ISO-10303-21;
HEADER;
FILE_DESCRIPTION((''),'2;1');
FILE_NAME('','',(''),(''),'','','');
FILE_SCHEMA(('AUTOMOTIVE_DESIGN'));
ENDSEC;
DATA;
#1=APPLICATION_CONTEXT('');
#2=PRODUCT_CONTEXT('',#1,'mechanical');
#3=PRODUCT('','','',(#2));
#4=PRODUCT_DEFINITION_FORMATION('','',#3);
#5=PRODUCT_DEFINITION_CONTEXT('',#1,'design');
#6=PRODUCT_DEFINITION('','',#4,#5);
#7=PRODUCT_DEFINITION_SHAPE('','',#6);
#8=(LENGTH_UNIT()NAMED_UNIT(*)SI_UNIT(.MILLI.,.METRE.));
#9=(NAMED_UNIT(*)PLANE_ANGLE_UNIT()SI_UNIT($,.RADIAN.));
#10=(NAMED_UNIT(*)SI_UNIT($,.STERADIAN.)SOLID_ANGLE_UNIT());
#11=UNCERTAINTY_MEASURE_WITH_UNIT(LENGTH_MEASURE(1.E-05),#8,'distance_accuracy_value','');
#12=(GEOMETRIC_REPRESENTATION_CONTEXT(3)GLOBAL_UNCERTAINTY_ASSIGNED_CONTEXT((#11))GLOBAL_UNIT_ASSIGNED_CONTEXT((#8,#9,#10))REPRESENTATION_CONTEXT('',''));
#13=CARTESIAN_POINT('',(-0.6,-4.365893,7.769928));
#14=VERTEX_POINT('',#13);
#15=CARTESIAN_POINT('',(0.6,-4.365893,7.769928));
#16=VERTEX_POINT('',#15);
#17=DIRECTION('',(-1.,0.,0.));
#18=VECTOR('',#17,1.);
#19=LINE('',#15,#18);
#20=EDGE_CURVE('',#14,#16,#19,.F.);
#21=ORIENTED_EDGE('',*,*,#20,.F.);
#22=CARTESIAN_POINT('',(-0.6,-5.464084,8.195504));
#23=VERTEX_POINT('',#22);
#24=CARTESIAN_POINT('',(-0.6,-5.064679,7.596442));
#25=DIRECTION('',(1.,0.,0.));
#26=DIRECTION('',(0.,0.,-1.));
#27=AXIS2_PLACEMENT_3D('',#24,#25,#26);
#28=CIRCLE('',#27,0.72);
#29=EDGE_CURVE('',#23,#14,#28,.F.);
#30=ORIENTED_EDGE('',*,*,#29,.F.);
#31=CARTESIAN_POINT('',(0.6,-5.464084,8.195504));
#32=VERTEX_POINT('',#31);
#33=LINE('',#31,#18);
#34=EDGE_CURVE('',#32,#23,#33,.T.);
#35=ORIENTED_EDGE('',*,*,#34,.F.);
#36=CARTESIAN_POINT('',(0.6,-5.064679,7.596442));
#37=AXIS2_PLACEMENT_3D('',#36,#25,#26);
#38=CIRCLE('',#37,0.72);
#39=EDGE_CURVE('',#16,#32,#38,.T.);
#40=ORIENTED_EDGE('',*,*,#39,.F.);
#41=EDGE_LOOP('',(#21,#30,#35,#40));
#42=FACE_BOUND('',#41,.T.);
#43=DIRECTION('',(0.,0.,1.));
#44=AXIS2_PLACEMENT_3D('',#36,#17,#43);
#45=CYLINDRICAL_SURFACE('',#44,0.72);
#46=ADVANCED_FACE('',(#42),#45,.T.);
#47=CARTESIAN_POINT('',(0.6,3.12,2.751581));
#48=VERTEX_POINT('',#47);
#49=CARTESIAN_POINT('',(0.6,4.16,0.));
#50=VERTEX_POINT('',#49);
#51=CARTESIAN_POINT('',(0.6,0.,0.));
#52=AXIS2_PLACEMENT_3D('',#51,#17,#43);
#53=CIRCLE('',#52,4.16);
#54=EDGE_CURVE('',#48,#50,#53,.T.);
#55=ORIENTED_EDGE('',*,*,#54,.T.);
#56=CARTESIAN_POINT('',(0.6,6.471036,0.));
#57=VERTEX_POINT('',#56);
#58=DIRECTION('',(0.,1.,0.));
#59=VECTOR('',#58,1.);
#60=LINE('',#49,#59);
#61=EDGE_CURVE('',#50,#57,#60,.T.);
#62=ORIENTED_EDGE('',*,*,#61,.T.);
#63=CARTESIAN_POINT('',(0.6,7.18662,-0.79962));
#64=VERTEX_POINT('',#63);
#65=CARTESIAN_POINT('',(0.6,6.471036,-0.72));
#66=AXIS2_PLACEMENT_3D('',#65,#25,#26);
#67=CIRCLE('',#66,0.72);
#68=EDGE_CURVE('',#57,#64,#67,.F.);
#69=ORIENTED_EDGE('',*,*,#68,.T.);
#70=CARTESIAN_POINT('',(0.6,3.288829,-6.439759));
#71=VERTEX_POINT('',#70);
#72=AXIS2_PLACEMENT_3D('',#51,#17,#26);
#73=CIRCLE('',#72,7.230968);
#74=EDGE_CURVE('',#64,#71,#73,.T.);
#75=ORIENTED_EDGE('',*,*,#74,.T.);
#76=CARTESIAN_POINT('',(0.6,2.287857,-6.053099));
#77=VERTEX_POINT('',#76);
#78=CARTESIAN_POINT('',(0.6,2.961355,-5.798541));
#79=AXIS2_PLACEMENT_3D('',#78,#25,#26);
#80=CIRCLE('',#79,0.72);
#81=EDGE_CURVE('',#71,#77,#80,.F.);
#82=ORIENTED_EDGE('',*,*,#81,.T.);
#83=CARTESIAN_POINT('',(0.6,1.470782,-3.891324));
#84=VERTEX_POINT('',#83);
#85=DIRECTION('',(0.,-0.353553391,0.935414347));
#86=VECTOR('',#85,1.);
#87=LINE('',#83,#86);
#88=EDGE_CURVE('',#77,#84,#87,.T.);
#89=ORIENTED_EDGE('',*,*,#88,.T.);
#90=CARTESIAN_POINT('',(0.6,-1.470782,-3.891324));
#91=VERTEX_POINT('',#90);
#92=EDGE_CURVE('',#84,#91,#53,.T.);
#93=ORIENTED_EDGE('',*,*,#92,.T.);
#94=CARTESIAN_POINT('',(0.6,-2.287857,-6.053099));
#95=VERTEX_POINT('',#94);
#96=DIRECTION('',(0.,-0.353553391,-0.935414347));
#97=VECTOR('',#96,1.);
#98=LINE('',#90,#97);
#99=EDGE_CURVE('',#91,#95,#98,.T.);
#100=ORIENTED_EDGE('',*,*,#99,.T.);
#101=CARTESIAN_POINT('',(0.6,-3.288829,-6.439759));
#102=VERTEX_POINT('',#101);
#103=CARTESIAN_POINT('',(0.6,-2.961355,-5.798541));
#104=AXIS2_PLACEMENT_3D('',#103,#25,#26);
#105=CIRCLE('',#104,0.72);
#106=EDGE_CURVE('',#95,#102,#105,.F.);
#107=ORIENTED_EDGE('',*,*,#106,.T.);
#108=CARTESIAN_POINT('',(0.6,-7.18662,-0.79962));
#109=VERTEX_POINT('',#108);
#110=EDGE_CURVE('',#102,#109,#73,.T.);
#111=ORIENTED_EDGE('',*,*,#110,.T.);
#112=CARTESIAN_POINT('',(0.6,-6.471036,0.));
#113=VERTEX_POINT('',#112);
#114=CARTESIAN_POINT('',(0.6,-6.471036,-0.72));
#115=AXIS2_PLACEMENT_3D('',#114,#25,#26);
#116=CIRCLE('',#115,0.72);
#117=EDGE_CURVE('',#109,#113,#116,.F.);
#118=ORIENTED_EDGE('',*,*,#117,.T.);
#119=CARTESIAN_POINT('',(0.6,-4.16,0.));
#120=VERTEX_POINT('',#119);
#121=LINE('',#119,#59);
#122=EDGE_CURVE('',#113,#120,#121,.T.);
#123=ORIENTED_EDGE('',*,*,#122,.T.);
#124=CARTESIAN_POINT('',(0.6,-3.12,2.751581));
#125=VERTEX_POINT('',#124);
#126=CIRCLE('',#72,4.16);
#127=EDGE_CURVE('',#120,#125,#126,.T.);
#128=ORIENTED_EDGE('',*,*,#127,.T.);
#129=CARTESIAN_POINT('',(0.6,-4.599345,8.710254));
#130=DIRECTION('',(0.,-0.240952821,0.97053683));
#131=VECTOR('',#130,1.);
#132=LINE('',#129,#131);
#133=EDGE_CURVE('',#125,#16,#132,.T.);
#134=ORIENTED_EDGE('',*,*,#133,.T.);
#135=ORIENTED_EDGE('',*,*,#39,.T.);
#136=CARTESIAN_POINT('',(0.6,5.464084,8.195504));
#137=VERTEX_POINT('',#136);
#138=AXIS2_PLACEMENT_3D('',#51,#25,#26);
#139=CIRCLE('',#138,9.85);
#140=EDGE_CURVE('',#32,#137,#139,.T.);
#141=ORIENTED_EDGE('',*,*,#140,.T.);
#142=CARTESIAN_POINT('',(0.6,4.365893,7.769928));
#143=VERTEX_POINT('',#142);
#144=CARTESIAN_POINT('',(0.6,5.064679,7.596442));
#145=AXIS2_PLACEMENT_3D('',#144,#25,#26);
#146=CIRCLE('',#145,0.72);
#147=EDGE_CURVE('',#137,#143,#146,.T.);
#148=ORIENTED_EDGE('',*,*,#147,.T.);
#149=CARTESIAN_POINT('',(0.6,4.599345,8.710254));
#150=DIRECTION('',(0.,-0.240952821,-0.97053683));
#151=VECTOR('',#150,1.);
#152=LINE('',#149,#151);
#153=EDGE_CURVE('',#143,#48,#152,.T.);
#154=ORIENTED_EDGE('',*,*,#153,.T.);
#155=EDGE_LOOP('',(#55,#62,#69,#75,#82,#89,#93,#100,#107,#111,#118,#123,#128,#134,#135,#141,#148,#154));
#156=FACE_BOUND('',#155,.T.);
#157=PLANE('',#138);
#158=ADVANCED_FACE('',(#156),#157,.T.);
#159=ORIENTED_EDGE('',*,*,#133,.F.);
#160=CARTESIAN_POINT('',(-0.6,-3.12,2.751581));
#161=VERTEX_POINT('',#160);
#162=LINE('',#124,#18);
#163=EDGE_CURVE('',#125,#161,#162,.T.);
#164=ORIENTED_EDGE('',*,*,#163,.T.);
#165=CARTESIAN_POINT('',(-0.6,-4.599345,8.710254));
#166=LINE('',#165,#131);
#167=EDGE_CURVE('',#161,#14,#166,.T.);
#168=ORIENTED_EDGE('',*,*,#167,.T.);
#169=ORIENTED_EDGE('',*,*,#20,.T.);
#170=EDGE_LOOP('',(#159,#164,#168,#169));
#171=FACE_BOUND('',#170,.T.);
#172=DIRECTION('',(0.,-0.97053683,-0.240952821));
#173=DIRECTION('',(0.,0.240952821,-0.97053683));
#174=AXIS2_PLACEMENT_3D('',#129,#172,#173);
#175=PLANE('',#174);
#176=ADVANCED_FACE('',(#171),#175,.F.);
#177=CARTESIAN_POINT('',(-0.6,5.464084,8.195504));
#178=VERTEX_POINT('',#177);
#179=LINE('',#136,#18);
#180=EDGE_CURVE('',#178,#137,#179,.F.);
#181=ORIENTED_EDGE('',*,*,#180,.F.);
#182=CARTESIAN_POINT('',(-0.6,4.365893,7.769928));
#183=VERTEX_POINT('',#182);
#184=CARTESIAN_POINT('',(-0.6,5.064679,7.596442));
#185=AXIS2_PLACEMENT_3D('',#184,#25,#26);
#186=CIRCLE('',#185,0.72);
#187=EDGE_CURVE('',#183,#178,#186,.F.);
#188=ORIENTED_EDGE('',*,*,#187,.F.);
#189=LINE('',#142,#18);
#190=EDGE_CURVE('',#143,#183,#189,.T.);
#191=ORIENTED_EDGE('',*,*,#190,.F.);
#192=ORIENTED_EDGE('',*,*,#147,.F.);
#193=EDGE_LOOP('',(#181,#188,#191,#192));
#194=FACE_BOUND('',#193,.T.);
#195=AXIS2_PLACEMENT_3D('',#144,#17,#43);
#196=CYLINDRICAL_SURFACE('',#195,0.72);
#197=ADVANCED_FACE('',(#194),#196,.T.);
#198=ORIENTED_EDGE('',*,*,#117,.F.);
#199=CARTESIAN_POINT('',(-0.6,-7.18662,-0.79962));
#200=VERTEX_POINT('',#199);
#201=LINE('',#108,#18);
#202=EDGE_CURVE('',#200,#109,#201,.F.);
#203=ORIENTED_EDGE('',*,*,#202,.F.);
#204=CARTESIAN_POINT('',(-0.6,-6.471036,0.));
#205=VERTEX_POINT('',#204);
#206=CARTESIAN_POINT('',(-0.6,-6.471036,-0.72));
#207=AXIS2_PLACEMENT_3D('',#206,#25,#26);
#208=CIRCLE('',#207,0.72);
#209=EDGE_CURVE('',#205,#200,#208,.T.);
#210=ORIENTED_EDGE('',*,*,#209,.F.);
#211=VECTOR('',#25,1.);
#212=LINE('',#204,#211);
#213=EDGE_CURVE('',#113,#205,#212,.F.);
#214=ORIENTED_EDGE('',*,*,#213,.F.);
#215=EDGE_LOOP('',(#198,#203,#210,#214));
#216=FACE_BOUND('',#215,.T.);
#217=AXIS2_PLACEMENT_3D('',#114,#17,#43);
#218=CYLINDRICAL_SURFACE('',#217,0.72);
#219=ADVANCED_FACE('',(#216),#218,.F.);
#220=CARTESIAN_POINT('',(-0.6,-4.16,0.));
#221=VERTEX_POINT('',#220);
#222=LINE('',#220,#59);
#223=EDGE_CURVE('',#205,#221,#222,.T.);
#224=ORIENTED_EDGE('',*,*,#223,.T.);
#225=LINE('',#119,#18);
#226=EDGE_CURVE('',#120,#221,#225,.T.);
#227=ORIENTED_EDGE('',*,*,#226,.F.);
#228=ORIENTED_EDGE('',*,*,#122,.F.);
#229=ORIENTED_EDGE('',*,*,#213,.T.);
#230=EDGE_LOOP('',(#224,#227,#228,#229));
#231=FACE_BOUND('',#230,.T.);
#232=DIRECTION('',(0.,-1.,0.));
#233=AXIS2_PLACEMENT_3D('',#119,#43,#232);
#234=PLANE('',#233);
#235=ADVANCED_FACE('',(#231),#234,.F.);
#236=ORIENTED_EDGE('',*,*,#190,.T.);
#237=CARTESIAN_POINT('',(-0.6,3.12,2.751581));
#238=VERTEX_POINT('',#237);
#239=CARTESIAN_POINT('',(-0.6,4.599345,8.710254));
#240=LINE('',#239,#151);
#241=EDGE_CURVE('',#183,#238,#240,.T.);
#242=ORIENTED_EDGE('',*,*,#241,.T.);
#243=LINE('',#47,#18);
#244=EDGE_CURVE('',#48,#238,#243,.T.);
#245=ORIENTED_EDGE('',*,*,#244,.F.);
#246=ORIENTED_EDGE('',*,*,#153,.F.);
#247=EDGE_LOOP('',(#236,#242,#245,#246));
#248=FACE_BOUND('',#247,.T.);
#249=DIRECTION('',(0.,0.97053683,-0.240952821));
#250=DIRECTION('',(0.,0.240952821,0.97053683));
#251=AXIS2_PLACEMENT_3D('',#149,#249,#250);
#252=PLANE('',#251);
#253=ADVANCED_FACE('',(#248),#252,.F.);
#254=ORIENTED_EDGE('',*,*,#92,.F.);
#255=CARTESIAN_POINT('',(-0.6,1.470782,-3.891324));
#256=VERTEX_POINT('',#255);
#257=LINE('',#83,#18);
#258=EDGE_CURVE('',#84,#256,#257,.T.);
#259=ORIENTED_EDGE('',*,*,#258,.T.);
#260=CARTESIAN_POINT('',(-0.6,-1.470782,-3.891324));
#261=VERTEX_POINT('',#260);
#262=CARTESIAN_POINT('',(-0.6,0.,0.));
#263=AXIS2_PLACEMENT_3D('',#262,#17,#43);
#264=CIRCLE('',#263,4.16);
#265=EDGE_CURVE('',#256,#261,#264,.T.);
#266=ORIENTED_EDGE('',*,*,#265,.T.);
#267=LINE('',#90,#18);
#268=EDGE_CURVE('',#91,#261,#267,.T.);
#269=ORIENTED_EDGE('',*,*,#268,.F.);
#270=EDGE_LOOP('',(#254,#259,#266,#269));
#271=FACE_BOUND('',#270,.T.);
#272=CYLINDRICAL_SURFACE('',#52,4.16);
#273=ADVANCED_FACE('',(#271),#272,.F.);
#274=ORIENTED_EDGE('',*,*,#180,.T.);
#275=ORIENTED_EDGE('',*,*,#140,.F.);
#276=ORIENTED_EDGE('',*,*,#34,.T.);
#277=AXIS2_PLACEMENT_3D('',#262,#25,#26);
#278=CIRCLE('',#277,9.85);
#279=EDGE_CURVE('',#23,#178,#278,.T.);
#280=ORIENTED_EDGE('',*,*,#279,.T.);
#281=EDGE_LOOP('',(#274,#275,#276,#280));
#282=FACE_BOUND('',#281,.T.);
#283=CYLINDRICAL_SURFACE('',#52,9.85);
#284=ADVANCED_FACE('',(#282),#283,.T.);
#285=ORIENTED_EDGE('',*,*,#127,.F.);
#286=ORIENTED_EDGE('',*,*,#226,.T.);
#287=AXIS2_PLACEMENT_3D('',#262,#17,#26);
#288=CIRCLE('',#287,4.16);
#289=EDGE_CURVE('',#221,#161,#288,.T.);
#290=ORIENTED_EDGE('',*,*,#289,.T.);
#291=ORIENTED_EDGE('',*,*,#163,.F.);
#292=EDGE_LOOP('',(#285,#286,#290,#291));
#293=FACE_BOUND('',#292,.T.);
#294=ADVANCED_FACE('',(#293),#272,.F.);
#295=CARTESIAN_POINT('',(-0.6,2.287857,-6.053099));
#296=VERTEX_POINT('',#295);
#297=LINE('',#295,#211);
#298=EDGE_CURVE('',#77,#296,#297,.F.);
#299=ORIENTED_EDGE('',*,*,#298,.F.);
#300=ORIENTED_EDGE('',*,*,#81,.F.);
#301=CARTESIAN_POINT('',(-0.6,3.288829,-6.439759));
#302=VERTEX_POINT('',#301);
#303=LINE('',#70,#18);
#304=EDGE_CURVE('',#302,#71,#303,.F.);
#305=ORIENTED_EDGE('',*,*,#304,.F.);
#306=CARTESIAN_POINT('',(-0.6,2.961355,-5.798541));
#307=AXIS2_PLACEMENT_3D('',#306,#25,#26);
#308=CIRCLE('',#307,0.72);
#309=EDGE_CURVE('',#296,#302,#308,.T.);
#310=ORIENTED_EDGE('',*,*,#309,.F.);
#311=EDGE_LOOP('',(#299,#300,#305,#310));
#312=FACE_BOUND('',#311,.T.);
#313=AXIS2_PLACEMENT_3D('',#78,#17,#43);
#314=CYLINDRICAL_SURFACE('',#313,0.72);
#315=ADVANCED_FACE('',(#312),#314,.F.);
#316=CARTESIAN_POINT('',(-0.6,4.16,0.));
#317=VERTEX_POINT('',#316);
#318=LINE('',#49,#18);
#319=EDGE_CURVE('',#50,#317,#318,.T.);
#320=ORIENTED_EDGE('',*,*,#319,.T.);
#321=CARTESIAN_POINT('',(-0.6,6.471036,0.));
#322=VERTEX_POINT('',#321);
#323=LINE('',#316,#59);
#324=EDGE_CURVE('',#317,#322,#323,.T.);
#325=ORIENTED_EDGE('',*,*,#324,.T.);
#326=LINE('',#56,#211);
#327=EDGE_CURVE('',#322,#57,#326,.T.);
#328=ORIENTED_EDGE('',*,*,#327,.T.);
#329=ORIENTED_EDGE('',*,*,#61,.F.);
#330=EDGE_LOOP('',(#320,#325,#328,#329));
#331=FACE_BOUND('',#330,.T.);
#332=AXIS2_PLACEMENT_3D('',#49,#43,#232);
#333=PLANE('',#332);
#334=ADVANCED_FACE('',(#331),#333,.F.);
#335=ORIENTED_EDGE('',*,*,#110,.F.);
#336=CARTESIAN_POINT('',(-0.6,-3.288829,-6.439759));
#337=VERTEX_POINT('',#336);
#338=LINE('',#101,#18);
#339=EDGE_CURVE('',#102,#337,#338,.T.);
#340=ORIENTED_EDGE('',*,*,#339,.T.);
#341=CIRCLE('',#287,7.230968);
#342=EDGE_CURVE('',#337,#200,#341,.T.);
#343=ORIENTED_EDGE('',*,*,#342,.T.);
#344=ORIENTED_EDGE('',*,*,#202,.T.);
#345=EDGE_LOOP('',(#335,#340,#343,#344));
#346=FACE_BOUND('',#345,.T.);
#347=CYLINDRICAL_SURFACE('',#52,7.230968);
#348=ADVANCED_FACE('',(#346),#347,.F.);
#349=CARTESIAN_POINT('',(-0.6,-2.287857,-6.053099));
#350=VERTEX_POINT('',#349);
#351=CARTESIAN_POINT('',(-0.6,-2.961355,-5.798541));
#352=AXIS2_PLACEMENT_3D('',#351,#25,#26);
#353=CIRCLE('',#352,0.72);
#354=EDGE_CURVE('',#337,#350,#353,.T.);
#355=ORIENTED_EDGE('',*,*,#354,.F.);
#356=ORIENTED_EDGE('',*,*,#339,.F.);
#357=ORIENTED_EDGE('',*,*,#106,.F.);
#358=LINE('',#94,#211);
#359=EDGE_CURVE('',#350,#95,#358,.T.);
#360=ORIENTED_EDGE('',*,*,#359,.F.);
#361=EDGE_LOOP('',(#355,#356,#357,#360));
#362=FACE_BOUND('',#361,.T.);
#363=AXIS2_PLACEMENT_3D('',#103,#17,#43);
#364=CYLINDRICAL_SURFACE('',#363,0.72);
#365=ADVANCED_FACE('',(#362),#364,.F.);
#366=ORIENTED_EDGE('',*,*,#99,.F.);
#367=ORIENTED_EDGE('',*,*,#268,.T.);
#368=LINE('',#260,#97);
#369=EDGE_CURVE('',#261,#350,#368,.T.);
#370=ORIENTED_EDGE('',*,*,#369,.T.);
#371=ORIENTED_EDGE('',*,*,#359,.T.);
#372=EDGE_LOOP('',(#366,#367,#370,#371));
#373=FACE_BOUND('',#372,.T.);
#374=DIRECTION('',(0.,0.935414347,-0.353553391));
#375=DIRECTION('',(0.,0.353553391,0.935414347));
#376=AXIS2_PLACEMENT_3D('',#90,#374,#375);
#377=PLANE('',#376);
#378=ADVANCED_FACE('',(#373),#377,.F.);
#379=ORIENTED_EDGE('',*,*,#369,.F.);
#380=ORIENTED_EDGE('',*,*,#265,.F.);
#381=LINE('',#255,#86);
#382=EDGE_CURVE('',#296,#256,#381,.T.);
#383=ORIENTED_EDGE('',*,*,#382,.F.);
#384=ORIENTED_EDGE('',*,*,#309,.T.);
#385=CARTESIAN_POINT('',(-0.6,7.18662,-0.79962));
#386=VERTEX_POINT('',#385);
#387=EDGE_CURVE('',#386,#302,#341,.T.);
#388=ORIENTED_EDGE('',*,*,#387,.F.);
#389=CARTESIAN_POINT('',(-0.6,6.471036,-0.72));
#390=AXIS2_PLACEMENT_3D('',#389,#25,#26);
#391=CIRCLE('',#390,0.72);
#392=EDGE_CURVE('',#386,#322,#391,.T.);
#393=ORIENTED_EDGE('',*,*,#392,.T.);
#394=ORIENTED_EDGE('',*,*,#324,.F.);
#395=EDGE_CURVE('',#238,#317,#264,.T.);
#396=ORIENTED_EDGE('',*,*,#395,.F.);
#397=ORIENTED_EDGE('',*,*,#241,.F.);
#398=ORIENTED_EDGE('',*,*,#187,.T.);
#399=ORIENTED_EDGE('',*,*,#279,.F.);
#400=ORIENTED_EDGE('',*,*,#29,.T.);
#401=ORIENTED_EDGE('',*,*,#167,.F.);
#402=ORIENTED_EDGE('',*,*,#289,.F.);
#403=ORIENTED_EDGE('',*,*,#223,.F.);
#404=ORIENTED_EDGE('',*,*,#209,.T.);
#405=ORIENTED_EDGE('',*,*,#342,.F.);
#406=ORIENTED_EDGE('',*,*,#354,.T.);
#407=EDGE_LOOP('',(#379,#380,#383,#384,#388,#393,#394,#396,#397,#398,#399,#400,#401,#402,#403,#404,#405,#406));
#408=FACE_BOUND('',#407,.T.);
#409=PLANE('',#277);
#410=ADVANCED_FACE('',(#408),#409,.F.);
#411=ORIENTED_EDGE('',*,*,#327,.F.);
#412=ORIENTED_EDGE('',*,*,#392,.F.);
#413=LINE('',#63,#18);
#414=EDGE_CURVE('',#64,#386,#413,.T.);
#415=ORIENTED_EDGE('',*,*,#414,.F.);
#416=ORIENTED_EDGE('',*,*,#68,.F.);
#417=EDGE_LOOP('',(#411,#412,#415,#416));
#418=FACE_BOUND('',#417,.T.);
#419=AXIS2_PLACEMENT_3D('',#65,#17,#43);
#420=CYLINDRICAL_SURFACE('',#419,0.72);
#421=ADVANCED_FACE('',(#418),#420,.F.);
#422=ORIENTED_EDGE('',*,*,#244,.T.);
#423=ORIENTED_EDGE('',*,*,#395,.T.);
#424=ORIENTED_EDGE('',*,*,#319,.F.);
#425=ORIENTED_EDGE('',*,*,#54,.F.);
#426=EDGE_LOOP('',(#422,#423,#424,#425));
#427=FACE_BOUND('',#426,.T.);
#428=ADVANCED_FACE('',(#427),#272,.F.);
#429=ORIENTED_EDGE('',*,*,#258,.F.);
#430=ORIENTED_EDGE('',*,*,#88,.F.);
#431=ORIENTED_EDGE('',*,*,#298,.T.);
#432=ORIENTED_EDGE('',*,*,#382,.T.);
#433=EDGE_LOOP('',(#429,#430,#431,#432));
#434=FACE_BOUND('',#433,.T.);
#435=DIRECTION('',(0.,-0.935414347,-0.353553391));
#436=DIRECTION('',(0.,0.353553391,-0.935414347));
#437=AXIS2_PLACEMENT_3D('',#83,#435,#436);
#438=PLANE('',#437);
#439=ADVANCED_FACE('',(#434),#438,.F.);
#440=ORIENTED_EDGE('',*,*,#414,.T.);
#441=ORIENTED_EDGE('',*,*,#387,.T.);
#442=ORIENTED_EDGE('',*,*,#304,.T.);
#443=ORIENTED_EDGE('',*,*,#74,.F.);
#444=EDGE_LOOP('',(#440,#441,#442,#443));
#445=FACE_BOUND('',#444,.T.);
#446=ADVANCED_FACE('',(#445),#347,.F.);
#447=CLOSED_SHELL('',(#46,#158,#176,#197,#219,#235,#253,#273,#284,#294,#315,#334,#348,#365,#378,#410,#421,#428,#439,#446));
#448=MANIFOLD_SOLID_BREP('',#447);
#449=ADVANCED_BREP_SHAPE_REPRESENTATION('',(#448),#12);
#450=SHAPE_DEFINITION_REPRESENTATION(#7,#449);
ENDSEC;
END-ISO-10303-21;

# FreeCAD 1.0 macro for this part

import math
import FreeCAD as App
import Part
import Sketcher

V = App.Vector
Q = App.Units.Quantity


def edges_at(feature, points):
    """Names of the edges that pass closest to the given points."""
    edges = feature.Shape.Edges
    near = lambda p: min(range(len(edges)), key=lambda i: edges[i].distToShape(Part.Vertex(*p))[0])
    return sorted({f"Edge{near(p) + 1}" for p in points})

doc = App.newDocument("Part")
params = doc.addObject("Spreadsheet::Sheet", "Params")
for row, (alias, value) in enumerate([
    ("sketch1_radius", "9.85 mm"),
    ("sketch1_radius2", "4.16 mm"),
    ("pad1_length", "1.2 mm"),
    ("fillet_radius", "0.72 mm"),
], start=1):
    params.set(f"A{row}", alias)
    params.set(f"B{row}", "=" + value)
    params.setAlias(f"B{row}", alias)

body = doc.addObject("PartDesign::Body", "Body")

sketch1 = body.newObject("Sketcher::SketchObject", "Sketch")
sketch1.AttachmentSupport = (doc.getObject("YZ_Plane"), [""])
sketch1.MapMode = "FlatFace"
sketch1.addGeometry(Part.LineSegment(V(-3.1, 2.8, 0), V(-4.6, 8.7, 0)), False)
sketch1.addGeometry(Part.ArcOfCircle(Part.Circle(V(0, 0, 0), V(0, 0, 1), 9.8), math.radians(118), math.radians(422)), False)
sketch1.addGeometry(Part.LineSegment(V(4.6, 8.7, 0), V(3.1, 2.8, 0)), False)
sketch1.addGeometry(Part.ArcOfCircle(Part.Circle(V(0, 0, 0), V(0, 0, 1), 4.2), math.radians(0), math.radians(41)), False)
sketch1.addGeometry(Part.LineSegment(V(4.2, 0, 0), V(7.2, 0, 0)), False)
sketch1.addGeometry(Part.ArcOfCircle(Part.Circle(V(0, 0, 0), V(0, 0, 1), 7.2), math.radians(-69), math.radians(0)), False)
sketch1.addGeometry(Part.LineSegment(V(2.6, -6.8, 0), V(1.5, -3.9, 0)), False)
sketch1.addGeometry(Part.ArcOfCircle(Part.Circle(V(0, 0, 0), V(0, 0, 1), 4.2), math.radians(-111), math.radians(-69)), False)
sketch1.addGeometry(Part.LineSegment(V(-1.5, -3.9, 0), V(-2.6, -6.8, 0)), False)
sketch1.addGeometry(Part.ArcOfCircle(Part.Circle(V(0, 0, 0), V(0, 0, 1), 7.2), math.radians(180), math.radians(249)), False)
sketch1.addGeometry(Part.LineSegment(V(-7.2, 0, 0), V(-4.2, 0, 0)), False)
sketch1.addGeometry(Part.ArcOfCircle(Part.Circle(V(0, 0, 0), V(0, 0, 1), 4.2), math.radians(139), math.radians(180)), False)
sketch1.addConstraint(Sketcher.Constraint("Coincident", 0, 2, 1, 1))
sketch1.addConstraint(Sketcher.Constraint("Coincident", 1, 2, 2, 1))
sketch1.addConstraint(Sketcher.Constraint("Coincident", 2, 2, 3, 2))
sketch1.addConstraint(Sketcher.Constraint("Coincident", 3, 1, 4, 1))
sketch1.addConstraint(Sketcher.Constraint("Coincident", 4, 2, 5, 2))
sketch1.addConstraint(Sketcher.Constraint("Coincident", 5, 1, 6, 1))
sketch1.addConstraint(Sketcher.Constraint("Coincident", 6, 2, 7, 2))
sketch1.addConstraint(Sketcher.Constraint("Coincident", 7, 1, 8, 1))
sketch1.addConstraint(Sketcher.Constraint("Coincident", 8, 2, 9, 2))
sketch1.addConstraint(Sketcher.Constraint("Coincident", 9, 1, 10, 1))
sketch1.addConstraint(Sketcher.Constraint("Coincident", 10, 2, 11, 2))
sketch1.addConstraint(Sketcher.Constraint("Coincident", 11, 1, 0, 1))
sketch1.addConstraint(Sketcher.Constraint("Horizontal", 4))
sketch1.addConstraint(Sketcher.Constraint("Horizontal", 10))
sketch1.addConstraint(Sketcher.Constraint("Coincident", 1, 3, -1, 1))
sketch1.addConstraint(Sketcher.Constraint("Coincident", 3, 3, -1, 1))
sketch1.addConstraint(Sketcher.Constraint("Coincident", 5, 3, -1, 1))
sketch1.addConstraint(Sketcher.Constraint("Coincident", 7, 3, -1, 1))
sketch1.addConstraint(Sketcher.Constraint("Coincident", 9, 3, -1, 1))
sketch1.addConstraint(Sketcher.Constraint("Coincident", 11, 3, -1, 1))
sketch1.addConstraint(Sketcher.Constraint("Equal", 3, 7))
sketch1.addConstraint(Sketcher.Constraint("Equal", 5, 9))
sketch1.addConstraint(Sketcher.Constraint("Equal", 7, 11))
sketch1.addConstraint(Sketcher.Constraint("PointOnObject", 3, 1, -1))
sketch1.addConstraint(Sketcher.Constraint("PointOnObject", 9, 1, -1))
sketch1.addConstraint(Sketcher.Constraint("Horizontal", 0, 2, 1, 2))
sketch1.addConstraint(Sketcher.Constraint("Horizontal", 6, 2, 7, 1))
sketch1.addConstraint(Sketcher.Constraint("Horizontal", 5, 1, 8, 2))
sketch1.addConstraint(Sketcher.Constraint("Horizontal", 2, 2, 11, 1))
sketch1.addConstraint(Sketcher.Constraint("Radius", 1, Q("9.85 mm")))
sketch1.addConstraint(Sketcher.Constraint("Radius", 3, Q("4.16 mm")))
sketch1.addConstraint(Sketcher.Constraint("DistanceX", -1, 1, 2, 2, Q("3.12 mm")))
sketch1.addConstraint(Sketcher.Constraint("Radius", 5, Q("7.230968 mm")))
sketch1.addConstraint(Sketcher.Constraint("DistanceY", 5, 1, -1, 1, Q("6.763951 mm")))
sketch1.addConstraint(Sketcher.Constraint("DistanceX", 0, 2, 1, 2, Q("9.19869 mm")))
sketch1.addConstraint(Sketcher.Constraint("DistanceX", 6, 2, 5, 1, Q("1.085751 mm")))
sketch1.setExpression("Constraints[29]", "Params.sketch1_radius")
sketch1.setExpression("Constraints[30]", "Params.sketch1_radius2")
pad1 = body.newObject("PartDesign::Pad", "Pad")
pad1.Profile = sketch1
pad1.setExpression("Length", "Params.pad1_length")
pad1.Midplane = True
doc.recompute()

fillet = body.newObject("PartDesign::Fillet", "Fillet")
fillet.Base = (pad1, edges_at(pad1, [
    (0, -4.599, 8.71),
    (0, -7.231, 0),
    (0, -2.557, -6.764),
    (0, 2.557, -6.764),
    (0, 7.231, 0),
    (0, 4.599, 8.71),
]))
fillet.setExpression("Radius", "Params.fillet_radius")

doc.recompute()
